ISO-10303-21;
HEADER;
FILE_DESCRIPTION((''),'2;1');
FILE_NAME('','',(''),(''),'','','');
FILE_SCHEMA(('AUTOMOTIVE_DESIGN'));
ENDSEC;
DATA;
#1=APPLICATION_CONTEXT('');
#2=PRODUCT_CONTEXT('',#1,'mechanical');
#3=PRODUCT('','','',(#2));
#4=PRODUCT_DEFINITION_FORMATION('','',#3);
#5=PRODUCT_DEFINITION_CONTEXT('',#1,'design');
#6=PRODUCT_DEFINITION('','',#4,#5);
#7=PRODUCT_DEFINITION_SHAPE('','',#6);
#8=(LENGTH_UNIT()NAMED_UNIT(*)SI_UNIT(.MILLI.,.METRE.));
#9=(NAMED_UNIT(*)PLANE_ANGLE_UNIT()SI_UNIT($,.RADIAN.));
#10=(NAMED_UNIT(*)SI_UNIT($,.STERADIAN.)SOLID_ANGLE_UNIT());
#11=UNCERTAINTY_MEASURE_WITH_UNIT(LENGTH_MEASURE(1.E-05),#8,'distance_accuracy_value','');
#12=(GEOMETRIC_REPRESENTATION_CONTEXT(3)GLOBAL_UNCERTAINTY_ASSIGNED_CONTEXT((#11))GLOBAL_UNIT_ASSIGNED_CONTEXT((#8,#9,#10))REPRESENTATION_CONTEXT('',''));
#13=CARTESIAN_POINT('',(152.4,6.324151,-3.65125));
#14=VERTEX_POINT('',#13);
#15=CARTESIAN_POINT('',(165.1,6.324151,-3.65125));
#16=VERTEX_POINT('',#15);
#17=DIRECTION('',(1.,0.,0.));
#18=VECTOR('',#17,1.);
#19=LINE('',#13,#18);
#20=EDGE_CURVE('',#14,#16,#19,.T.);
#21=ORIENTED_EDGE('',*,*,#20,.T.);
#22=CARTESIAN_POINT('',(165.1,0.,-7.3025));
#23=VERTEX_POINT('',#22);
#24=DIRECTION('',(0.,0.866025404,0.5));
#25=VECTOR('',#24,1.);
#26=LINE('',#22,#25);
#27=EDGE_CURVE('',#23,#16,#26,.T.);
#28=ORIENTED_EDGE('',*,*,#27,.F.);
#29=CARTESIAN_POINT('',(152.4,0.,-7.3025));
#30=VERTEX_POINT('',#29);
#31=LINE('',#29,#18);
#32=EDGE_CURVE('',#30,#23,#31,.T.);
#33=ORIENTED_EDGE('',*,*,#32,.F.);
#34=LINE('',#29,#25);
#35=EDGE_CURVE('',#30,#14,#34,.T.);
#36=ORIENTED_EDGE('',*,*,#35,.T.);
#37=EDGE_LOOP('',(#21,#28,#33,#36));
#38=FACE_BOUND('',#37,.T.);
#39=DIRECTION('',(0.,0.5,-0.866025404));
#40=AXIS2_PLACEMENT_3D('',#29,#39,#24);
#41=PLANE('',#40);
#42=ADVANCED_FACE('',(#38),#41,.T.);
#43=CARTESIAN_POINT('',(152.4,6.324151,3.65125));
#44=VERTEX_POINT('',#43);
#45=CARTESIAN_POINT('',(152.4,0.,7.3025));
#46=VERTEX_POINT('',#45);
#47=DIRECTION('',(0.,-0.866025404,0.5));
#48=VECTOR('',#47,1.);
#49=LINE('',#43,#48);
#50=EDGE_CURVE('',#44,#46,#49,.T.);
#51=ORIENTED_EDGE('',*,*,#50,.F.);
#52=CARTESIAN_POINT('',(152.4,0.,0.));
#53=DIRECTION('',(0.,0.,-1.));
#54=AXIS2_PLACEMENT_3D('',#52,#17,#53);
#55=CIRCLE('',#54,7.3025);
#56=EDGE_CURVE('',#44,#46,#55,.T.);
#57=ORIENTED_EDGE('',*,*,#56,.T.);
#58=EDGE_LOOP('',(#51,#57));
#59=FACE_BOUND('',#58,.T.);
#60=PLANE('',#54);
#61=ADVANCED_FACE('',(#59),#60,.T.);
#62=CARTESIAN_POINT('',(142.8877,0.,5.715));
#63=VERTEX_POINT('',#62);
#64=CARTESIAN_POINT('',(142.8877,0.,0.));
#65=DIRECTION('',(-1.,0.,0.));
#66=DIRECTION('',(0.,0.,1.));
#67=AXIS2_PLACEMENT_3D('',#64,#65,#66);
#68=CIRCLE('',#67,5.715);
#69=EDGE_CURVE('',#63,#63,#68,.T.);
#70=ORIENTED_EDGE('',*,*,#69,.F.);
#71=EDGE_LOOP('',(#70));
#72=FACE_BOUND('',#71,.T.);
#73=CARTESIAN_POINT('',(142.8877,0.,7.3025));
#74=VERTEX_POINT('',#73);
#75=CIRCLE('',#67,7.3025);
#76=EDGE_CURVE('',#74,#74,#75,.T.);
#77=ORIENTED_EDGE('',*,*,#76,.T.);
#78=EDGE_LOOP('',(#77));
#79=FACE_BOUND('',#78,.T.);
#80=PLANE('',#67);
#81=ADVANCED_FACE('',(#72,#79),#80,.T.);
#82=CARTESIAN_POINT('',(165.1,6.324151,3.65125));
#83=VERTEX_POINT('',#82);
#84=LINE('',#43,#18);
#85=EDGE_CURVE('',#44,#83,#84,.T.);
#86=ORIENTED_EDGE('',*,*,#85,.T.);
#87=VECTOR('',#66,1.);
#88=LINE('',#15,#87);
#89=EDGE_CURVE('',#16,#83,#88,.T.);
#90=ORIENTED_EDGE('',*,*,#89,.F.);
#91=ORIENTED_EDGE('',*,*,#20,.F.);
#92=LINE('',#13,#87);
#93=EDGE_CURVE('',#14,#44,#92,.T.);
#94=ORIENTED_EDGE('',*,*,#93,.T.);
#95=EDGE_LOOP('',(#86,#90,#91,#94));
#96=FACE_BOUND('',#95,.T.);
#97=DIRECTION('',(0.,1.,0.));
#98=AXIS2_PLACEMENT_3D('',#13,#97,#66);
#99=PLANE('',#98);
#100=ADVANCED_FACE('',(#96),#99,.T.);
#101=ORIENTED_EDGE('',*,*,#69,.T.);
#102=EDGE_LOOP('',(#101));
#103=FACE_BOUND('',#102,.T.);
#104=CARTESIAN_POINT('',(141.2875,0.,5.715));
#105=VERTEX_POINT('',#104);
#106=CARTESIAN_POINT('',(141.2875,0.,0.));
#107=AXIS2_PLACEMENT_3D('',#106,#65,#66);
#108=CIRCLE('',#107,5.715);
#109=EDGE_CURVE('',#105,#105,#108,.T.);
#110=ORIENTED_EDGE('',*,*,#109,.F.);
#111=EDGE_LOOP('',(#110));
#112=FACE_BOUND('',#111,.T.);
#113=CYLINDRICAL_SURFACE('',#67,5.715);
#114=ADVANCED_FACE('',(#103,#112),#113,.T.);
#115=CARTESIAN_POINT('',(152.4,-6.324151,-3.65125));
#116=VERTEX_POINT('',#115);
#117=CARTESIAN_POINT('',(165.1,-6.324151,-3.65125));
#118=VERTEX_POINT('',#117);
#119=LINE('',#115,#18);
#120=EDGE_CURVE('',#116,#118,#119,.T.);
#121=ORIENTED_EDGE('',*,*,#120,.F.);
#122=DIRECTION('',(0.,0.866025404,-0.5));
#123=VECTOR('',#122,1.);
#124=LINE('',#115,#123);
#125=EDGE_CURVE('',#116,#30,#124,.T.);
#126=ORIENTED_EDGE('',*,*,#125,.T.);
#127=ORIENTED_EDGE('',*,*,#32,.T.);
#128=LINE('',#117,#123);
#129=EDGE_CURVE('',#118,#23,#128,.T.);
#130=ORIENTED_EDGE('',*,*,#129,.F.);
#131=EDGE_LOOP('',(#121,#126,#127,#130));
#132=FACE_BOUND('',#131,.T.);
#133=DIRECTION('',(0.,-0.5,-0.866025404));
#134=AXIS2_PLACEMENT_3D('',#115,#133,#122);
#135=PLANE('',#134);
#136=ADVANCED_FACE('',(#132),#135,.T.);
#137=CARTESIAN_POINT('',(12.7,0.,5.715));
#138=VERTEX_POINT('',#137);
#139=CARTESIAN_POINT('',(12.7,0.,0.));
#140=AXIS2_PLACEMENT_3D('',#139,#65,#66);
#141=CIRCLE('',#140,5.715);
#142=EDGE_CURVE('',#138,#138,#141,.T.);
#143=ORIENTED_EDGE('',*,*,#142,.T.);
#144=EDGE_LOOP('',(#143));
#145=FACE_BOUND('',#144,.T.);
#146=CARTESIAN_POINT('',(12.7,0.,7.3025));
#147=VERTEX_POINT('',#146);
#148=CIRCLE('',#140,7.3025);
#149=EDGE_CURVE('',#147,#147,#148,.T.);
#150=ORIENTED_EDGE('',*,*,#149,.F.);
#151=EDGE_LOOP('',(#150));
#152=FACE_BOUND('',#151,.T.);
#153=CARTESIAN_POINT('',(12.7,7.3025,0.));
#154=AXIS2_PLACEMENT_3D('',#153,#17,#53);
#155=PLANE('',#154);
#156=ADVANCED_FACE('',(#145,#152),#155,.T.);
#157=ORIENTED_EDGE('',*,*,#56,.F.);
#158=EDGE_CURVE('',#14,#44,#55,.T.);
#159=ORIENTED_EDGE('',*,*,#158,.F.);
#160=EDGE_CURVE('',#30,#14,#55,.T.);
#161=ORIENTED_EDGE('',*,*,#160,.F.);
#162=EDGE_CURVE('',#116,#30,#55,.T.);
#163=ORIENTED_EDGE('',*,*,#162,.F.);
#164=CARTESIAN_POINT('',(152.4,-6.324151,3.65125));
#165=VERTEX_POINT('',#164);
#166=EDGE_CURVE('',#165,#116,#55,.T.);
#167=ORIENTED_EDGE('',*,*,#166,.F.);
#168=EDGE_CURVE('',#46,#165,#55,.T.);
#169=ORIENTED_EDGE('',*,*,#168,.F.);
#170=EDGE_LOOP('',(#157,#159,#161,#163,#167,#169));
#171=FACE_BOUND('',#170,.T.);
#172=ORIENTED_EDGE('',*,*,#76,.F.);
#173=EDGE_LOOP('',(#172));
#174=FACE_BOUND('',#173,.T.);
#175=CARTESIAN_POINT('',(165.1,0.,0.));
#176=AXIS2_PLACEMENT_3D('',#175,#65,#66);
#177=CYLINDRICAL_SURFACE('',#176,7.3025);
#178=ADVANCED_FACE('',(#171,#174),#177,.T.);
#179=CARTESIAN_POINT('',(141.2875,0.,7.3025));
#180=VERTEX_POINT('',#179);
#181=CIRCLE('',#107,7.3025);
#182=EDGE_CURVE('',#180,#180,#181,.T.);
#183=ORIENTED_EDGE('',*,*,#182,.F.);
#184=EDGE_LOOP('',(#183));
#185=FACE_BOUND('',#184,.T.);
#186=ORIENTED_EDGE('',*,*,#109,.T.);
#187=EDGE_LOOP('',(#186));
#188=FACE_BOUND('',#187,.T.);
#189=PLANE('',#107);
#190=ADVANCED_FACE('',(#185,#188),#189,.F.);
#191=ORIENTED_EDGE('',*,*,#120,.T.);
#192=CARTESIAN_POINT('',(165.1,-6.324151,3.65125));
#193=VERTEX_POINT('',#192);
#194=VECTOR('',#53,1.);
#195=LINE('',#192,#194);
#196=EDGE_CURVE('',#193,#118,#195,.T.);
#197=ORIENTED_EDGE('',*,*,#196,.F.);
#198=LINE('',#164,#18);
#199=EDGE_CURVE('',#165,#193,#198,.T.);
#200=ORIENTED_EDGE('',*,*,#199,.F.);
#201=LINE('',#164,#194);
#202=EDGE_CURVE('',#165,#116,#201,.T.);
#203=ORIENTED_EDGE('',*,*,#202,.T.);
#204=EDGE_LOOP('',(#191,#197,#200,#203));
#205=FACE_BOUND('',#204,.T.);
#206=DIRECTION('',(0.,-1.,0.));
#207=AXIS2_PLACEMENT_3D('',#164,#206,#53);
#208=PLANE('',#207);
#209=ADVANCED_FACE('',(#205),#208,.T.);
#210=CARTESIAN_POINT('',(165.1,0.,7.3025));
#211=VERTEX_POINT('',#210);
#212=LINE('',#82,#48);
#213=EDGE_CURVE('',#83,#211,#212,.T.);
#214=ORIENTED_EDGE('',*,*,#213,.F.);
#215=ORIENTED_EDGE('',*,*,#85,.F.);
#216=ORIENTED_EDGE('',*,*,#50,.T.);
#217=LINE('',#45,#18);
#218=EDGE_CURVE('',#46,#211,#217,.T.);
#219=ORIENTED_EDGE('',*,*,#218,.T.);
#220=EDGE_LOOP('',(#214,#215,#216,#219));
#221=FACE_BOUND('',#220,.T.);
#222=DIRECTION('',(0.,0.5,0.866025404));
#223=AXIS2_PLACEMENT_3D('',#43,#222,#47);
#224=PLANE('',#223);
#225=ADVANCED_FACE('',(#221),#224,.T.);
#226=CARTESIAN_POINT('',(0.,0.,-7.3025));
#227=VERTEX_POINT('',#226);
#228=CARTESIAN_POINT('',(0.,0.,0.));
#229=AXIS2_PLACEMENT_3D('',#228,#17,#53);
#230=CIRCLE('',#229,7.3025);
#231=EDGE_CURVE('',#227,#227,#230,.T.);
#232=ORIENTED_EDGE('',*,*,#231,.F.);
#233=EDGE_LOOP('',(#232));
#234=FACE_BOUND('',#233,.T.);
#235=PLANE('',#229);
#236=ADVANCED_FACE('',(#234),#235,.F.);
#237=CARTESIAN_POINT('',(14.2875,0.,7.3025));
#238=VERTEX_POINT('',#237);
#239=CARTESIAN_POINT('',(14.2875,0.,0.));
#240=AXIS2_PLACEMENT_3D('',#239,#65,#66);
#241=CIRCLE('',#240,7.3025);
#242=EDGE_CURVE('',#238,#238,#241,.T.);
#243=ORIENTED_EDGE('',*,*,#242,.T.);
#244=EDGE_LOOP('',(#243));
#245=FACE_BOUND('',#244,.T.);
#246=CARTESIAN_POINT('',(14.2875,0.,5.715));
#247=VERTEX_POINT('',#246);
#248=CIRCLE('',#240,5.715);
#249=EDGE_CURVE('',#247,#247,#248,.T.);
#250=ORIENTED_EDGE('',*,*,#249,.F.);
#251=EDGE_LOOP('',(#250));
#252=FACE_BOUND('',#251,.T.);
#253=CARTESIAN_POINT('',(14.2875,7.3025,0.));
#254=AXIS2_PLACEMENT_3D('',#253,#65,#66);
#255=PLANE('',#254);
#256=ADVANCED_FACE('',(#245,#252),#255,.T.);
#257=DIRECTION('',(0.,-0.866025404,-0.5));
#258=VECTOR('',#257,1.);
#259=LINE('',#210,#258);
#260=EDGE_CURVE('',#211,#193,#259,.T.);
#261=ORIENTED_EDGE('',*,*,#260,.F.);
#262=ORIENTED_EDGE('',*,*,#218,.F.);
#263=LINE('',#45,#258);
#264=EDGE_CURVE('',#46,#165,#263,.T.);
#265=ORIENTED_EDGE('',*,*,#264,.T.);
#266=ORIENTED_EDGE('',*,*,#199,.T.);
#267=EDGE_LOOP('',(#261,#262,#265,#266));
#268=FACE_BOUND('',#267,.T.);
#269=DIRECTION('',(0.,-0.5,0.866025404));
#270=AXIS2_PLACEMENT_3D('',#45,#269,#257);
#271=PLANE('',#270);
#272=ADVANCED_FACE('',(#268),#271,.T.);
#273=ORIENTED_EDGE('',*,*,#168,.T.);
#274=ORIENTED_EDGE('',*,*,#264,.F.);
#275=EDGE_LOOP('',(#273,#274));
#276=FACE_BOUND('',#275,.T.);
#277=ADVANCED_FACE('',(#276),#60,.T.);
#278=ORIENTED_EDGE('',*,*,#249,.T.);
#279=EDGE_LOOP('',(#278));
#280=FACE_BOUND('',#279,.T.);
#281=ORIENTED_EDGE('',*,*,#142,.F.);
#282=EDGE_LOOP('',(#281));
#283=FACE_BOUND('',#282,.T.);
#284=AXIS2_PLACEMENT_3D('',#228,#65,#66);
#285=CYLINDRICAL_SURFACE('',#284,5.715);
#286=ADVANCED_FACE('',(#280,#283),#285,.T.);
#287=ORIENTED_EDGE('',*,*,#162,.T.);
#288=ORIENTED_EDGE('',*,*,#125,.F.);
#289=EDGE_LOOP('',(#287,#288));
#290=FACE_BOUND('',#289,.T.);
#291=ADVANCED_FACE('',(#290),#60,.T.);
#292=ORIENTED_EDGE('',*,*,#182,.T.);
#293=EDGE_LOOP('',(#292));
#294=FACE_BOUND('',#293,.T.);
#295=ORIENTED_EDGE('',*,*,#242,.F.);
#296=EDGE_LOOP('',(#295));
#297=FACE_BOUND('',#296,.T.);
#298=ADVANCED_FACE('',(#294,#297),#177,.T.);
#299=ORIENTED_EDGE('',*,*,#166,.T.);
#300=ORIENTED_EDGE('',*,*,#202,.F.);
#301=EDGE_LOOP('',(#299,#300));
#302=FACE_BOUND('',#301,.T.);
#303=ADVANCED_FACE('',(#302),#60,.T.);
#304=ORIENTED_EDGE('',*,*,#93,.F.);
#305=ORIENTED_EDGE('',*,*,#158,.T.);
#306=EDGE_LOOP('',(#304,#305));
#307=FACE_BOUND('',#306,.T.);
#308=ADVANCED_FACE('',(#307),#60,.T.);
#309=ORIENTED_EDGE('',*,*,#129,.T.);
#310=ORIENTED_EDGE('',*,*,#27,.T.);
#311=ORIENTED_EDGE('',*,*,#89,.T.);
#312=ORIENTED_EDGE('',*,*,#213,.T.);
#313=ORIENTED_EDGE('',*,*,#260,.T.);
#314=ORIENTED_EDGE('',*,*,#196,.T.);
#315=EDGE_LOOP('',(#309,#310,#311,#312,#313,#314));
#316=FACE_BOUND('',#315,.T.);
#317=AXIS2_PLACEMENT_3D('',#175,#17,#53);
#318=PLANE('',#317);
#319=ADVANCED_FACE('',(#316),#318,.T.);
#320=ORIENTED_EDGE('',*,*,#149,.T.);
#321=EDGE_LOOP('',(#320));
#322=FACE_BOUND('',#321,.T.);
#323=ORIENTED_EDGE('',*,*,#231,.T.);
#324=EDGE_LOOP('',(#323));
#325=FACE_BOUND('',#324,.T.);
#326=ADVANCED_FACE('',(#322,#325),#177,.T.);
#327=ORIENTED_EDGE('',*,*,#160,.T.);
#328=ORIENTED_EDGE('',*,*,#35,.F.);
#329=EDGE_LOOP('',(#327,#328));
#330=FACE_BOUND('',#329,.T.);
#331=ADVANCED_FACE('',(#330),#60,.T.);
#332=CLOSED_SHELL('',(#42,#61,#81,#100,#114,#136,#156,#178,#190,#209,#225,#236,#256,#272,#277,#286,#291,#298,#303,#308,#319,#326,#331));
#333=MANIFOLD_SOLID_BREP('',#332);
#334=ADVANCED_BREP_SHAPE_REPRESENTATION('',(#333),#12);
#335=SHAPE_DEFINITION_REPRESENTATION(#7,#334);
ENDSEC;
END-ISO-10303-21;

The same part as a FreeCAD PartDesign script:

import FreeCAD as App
import Part
import Sketcher
from FreeCAD import Vector
Q = App.Units.Quantity

doc = App.newDocument("Part")
body = doc.addObject("PartDesign::Body", "Body")

# Sketch on YZ plane
sketch1 = doc.addObject("Sketcher::SketchObject", "Sketch")
body.addObject(sketch1)
sketch1.AttachmentSupport = (doc.YZ_Plane, [""])
sketch1.MapMode = "FlatFace"
sketch1.addGeometry(Part.Circle(Vector(0, 0, 0), Vector(0, 0, 1), 7.3025), False)
sketch1.addConstraint([
    Sketcher.Constraint("Coincident", 0, 3, -1, 1),
    Sketcher.Constraint("Diameter", 0, Q("0.575 in")),
])
pad1 = doc.addObject("PartDesign::Pad", "Pad")
body.addObject(pad1)
pad1.Profile = sketch1
pad1.Length = Q("6.5 in")

# Sketch on XY plane
sketch2 = doc.addObject("Sketcher::SketchObject", "Sketch001")
body.addObject(sketch2)
sketch2.AttachmentSupport = (doc.XY_Plane, [""])
sketch2.MapMode = "FlatFace"
sketch2.addGeometry([
    Part.LineSegment(Vector(12.7, 7.3025, 0), Vector(12.7, 5.715, 0)),
    Part.LineSegment(Vector(12.7, 5.715, 0), Vector(14.2875, 5.715, 0)),
    Part.LineSegment(Vector(14.2875, 5.715, 0), Vector(14.2875, 7.3025, 0)),
    Part.LineSegment(Vector(14.2875, 7.3025, 0), Vector(12.7, 7.3025, 0)),
], False)
sketch2.addConstraint([
    Sketcher.Constraint("Coincident", 0, 2, 1, 1),
    Sketcher.Constraint("Coincident", 1, 2, 2, 1),
    Sketcher.Constraint("Coincident", 2, 2, 3, 1),
    Sketcher.Constraint("Coincident", 3, 2, 0, 1),
    Sketcher.Constraint("Vertical", 0),
    Sketcher.Constraint("Horizontal", 1),
    Sketcher.Constraint("Vertical", 2),
    Sketcher.Constraint("Horizontal", 3),
    Sketcher.Constraint("Equal", 3, 0),
    Sketcher.Constraint("DistanceX", -1, 1, 0, 2, Q("0.5 in")),
    Sketcher.Constraint("DistanceX", 1, 1, 1, 2, Q("0.0625 in")),
    Sketcher.Constraint("DistanceY", -1, 1, 0, 2, Q("0.225 in")),
])
groove = doc.addObject("PartDesign::Groove", "Groove")
body.addObject(groove)
groove.Profile = sketch2
groove.ReferenceAxis = (sketch2, ["H_Axis"])
groove.Angle = 360

# Sketch on YZ plane
sketch3 = doc.addObject("Sketcher::SketchObject", "Sketch002")
body.addObject(sketch3)
sketch3.AttachmentSupport = (doc.YZ_Plane, [""])
sketch3.MapMode = "FlatFace"
sketch3.AttachmentOffset = App.Placement(Vector(0, 0, 5.5625 * 25.4), App.Rotation())
sketch3.addGeometry([
    Part.Circle(Vector(0, 0, 0), Vector(0, 0, 1), 7.3025),
    Part.Circle(Vector(0, 0, 0), Vector(0, 0, 1), 5.715),
], False)
sketch3.addConstraint([
    Sketcher.Constraint("Coincident", 0, 3, -1, 1),
    Sketcher.Constraint("Coincident", 1, 3, -1, 1),
    Sketcher.Constraint("Diameter", 1, Q("0.45 in")),
    Sketcher.Constraint("Diameter", 0, Q("0.575 in")),
])
pocket1 = doc.addObject("PartDesign::Pocket", "Pocket")
body.addObject(pocket1)
pocket1.Profile = sketch3
pocket1.Length = Q("0.063 in")
pocket1.Reversed = True

# Sketch on YZ plane
sketch4 = doc.addObject("Sketcher::SketchObject", "Sketch003")
body.addObject(sketch4)
sketch4.AttachmentSupport = (doc.YZ_Plane, [""])
sketch4.MapMode = "FlatFace"
sketch4.AttachmentOffset = App.Placement(Vector(0, 0, 6.5 * 25.4), App.Rotation())
sketch4.addGeometry([
    Part.LineSegment(Vector(24.941, 24.941, 0), Vector(-24.941, 24.941, 0)),  # 0
    Part.LineSegment(Vector(-24.941, 24.941, 0), Vector(-24.941, -24.941, 0)),  # 1
    Part.LineSegment(Vector(-24.941, -24.941, 0), Vector(24.941, -24.941, 0)),  # 2
    Part.LineSegment(Vector(24.941, -24.941, 0), Vector(24.941, 24.941, 0)),  # 3
    Part.LineSegment(Vector(6.324151, -3.65125, 0), Vector(0, -7.3025, 0)),  # 4
    Part.LineSegment(Vector(0, -7.3025, 0), Vector(-6.324151, -3.65125, 0)),  # 5
    Part.LineSegment(Vector(-6.324151, -3.65125, 0), Vector(-6.324151, 3.65125, 0)),  # 6
    Part.LineSegment(Vector(-6.324151, 3.65125, 0), Vector(0, 7.3025, 0)),  # 7
    Part.LineSegment(Vector(0, 7.3025, 0), Vector(6.324151, 3.65125, 0)),  # 8
    Part.LineSegment(Vector(6.324151, 3.65125, 0), Vector(6.324151, -3.65125, 0)),  # 9
], False)
sketch4.addConstraint([
    Sketcher.Constraint("Coincident", 0, 2, 1, 1),
    Sketcher.Constraint("Coincident", 1, 2, 2, 1),
    Sketcher.Constraint("Coincident", 2, 2, 3, 1),
    Sketcher.Constraint("Coincident", 3, 2, 0, 1),
    Sketcher.Constraint("Coincident", 4, 2, 5, 1),
    Sketcher.Constraint("Coincident", 5, 2, 6, 1),
    Sketcher.Constraint("Coincident", 6, 2, 7, 1),
    Sketcher.Constraint("Coincident", 7, 2, 8, 1),
    Sketcher.Constraint("Coincident", 8, 2, 9, 1),
    Sketcher.Constraint("Coincident", 9, 2, 4, 1),
    Sketcher.Constraint("Horizontal", 0),
    Sketcher.Constraint("Vertical", 1),
    Sketcher.Constraint("Horizontal", 2),
    Sketcher.Constraint("Vertical", 3),
    Sketcher.Constraint("Vertical", 6),
    Sketcher.Constraint("Vertical", 9),
    Sketcher.Constraint("Symmetric", 0, 2, 2, 2, -1, 1),
    Sketcher.Constraint("Symmetric", 4, 2, 7, 2, -1, 1),
    Sketcher.Constraint("Symmetric", 5, 2, 8, 2, -1, 1),
    Sketcher.Constraint("PointOnObject", 4, 2, -2),
    Sketcher.Constraint("Parallel", 4, 7),
    Sketcher.Constraint("Horizontal", 6, 2, 8, 2),
    Sketcher.Constraint("Equal", 2, 1),
    Sketcher.Constraint("Angle", 4, Q("-150 deg")),
    Sketcher.Constraint("DistanceY", 6, 1, 6, 2, Q("0.2875 in")),
    Sketcher.Constraint("DistanceY", 4, 2, 7, 2, Q("0.575 in")),
    Sketcher.Constraint("DistanceX", 0, 2, 0, 1, Q("49.882 mm")),
])
pocket2 = doc.addObject("PartDesign::Pocket", "Pocket001")
body.addObject(pocket2)
pocket2.Profile = sketch4
pocket2.Length = Q("0.5 in")

doc.recompute()
